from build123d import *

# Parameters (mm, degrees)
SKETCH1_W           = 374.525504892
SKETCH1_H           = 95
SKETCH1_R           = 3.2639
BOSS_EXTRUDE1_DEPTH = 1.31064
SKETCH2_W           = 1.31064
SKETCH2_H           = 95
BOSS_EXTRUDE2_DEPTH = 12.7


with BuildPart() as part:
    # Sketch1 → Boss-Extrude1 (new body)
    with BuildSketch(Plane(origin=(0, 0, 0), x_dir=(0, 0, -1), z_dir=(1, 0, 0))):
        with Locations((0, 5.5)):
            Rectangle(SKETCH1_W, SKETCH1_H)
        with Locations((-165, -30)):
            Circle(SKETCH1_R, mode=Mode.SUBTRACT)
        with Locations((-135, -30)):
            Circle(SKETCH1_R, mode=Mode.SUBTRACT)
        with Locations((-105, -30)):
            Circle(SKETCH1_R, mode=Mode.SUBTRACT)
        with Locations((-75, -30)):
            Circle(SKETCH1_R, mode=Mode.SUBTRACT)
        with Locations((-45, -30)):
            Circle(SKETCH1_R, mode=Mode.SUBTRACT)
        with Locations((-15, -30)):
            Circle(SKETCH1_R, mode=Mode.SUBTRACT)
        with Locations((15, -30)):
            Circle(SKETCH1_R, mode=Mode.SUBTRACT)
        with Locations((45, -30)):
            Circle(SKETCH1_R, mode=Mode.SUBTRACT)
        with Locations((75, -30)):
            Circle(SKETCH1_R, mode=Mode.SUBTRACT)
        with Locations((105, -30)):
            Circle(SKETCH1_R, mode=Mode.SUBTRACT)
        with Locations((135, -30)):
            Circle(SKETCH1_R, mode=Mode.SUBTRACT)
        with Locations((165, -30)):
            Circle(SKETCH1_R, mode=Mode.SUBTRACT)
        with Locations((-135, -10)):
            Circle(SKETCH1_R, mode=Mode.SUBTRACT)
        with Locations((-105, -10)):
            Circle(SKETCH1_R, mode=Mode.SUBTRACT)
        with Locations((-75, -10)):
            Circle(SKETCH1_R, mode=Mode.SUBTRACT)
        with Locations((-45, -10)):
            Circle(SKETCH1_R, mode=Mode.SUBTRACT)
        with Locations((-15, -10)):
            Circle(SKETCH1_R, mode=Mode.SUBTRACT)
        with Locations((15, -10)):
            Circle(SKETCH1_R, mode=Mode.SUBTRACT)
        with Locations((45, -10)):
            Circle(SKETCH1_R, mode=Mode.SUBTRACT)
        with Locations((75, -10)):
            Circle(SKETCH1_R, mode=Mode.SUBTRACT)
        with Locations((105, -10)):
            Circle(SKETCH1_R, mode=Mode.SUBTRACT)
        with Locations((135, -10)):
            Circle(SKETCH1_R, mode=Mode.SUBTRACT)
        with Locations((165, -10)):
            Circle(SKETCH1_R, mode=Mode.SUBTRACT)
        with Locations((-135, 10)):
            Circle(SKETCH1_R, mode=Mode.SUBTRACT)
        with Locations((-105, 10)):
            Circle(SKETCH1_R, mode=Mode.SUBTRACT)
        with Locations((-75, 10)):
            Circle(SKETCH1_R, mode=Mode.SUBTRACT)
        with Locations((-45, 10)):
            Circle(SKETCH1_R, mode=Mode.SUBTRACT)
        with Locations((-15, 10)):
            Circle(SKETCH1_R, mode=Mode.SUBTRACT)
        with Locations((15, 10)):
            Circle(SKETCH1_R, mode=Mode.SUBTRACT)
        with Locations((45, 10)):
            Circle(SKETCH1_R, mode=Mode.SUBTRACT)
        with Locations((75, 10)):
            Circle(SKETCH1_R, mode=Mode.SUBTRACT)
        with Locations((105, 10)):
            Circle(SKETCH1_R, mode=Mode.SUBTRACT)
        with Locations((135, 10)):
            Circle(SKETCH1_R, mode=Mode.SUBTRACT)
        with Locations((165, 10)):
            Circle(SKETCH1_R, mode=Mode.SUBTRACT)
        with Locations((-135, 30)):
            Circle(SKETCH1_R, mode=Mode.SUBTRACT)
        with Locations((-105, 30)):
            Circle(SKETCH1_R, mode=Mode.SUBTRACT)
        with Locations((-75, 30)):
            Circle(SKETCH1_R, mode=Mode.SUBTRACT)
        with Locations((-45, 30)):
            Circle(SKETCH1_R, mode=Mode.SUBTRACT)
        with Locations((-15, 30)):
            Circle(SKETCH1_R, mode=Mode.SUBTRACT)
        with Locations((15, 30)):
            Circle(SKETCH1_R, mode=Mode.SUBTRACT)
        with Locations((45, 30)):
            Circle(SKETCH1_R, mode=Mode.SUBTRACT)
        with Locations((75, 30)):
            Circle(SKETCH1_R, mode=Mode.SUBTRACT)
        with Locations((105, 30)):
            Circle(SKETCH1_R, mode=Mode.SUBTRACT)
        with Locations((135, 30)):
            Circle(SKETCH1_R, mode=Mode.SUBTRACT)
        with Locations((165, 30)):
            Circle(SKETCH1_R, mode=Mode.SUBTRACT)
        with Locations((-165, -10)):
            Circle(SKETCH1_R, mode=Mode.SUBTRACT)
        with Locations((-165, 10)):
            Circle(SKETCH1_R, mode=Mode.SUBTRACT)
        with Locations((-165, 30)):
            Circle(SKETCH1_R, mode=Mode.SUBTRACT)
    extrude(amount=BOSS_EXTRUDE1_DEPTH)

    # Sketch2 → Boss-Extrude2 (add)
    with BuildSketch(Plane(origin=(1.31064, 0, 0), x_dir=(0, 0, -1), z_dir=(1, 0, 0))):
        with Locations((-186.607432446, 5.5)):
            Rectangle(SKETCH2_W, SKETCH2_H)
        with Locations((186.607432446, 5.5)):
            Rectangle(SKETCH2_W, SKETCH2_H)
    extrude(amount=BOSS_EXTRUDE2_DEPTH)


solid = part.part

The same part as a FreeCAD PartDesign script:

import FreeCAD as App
import Part
import Sketcher

V = App.Vector
Q = App.Units.Quantity


def add_polygon(sketch, points):
    """Adds a closed chain of lines whose ends are joined by coincident constraints."""
    first, n = sketch.GeometryCount, len(points)
    for a, b in zip(points, points[1:] + points[:1]):
        sketch.addGeometry(Part.LineSegment(App.Vector(*a, 0), App.Vector(*b, 0)), False)
    for i in range(n):
        sketch.addConstraint(Sketcher.Constraint("Coincident", first + i, 2, first + (i + 1) % n, 1))

doc = App.newDocument("Part")
body = doc.addObject("PartDesign::Body", "Body")

# Sketch on YZ plane
sketch1 = body.newObject("Sketcher::SketchObject", "Sketch")
sketch1.AttachmentSupport = (doc.getObject("YZ_Plane"), [""])
sketch1.MapMode = "FlatFace"
add_polygon(sketch1, [(53, 187.262752), (-42, 187.262752), (-42, -187.262752), (53, -187.262752)])  # lines 0-3
sketch1.addGeometry(Part.Circle(V(-30, 165, 0), V(0, 0, 1), 3.2639), False)  # 4
sketch1.addGeometry(Part.Circle(V(-30, 135, 0), V(0, 0, 1), 3.2639), False)  # 5
sketch1.addGeometry(Part.Circle(V(-30, 105, 0), V(0, 0, 1), 3.2639), False)  # 6
sketch1.addGeometry(Part.Circle(V(-30, 75, 0), V(0, 0, 1), 3.2639), False)  # 7
sketch1.addGeometry(Part.Circle(V(-30, 45, 0), V(0, 0, 1), 3.2639), False)  # 8
sketch1.addGeometry(Part.Circle(V(-30, 15, 0), V(0, 0, 1), 3.2639), False)  # 9
sketch1.addGeometry(Part.Circle(V(-10, 165, 0), V(0, 0, 1), 3.2639), False)  # 10
sketch1.addGeometry(Part.Circle(V(-10, 135, 0), V(0, 0, 1), 3.2639), False)  # 11
sketch1.addGeometry(Part.Circle(V(-10, 105, 0), V(0, 0, 1), 3.2639), False)  # 12
sketch1.addGeometry(Part.Circle(V(-10, 75, 0), V(0, 0, 1), 3.2639), False)  # 13
sketch1.addGeometry(Part.Circle(V(-10, 45, 0), V(0, 0, 1), 3.2639), False)  # 14
sketch1.addGeometry(Part.Circle(V(-10, 15, 0), V(0, 0, 1), 3.2639), False)  # 15
sketch1.addGeometry(Part.Circle(V(-30, -15, 0), V(0, 0, 1), 3.2639), False)  # 16
sketch1.addGeometry(Part.Circle(V(-30, -45, 0), V(0, 0, 1), 3.2639), False)  # 17
sketch1.addGeometry(Part.Circle(V(-30, -75, 0), V(0, 0, 1), 3.2639), False)  # 18
sketch1.addGeometry(Part.Circle(V(-30, -105, 0), V(0, 0, 1), 3.2639), False)  # 19
sketch1.addGeometry(Part.Circle(V(-30, -135, 0), V(0, 0, 1), 3.2639), False)  # 20
sketch1.addGeometry(Part.Circle(V(-30, -165, 0), V(0, 0, 1), 3.2639), False)  # 21
sketch1.addGeometry(Part.Circle(V(-10, -15, 0), V(0, 0, 1), 3.2639), False)  # 22
sketch1.addGeometry(Part.Circle(V(-10, -45, 0), V(0, 0, 1), 3.2639), False)  # 23
sketch1.addGeometry(Part.Circle(V(-10, -75, 0), V(0, 0, 1), 3.2639), False)  # 24
sketch1.addGeometry(Part.Circle(V(-10, -105, 0), V(0, 0, 1), 3.2639), False)  # 25
sketch1.addGeometry(Part.Circle(V(-10, -135, 0), V(0, 0, 1), 3.2639), False)  # 26
sketch1.addGeometry(Part.Circle(V(-10, -165, 0), V(0, 0, 1), 3.2639), False)  # 27
sketch1.addGeometry(Part.Circle(V(10, 165, 0), V(0, 0, 1), 3.2639), False)  # 28
sketch1.addGeometry(Part.Circle(V(10, 135, 0), V(0, 0, 1), 3.2639), False)  # 29
sketch1.addGeometry(Part.Circle(V(10, 105, 0), V(0, 0, 1), 3.2639), False)  # 30
sketch1.addGeometry(Part.Circle(V(10, 75, 0), V(0, 0, 1), 3.2639), False)  # 31
sketch1.addGeometry(Part.Circle(V(10, 45, 0), V(0, 0, 1), 3.2639), False)  # 32
sketch1.addGeometry(Part.Circle(V(10, 15, 0), V(0, 0, 1), 3.2639), False)  # 33
sketch1.addGeometry(Part.Circle(V(30, 165, 0), V(0, 0, 1), 3.2639), False)  # 34
sketch1.addGeometry(Part.Circle(V(30, 135, 0), V(0, 0, 1), 3.2639), False)  # 35
sketch1.addGeometry(Part.Circle(V(30, 105, 0), V(0, 0, 1), 3.2639), False)  # 36
sketch1.addGeometry(Part.Circle(V(30, 75, 0), V(0, 0, 1), 3.2639), False)  # 37
sketch1.addGeometry(Part.Circle(V(30, 45, 0), V(0, 0, 1), 3.2639), False)  # 38
sketch1.addGeometry(Part.Circle(V(30, 15, 0), V(0, 0, 1), 3.2639), False)  # 39
sketch1.addGeometry(Part.Circle(V(10, -15, 0), V(0, 0, 1), 3.2639), False)  # 40
sketch1.addGeometry(Part.Circle(V(10, -45, 0), V(0, 0, 1), 3.2639), False)  # 41
sketch1.addGeometry(Part.Circle(V(10, -75, 0), V(0, 0, 1), 3.2639), False)  # 42
sketch1.addGeometry(Part.Circle(V(10, -105, 0), V(0, 0, 1), 3.2639), False)  # 43
sketch1.addGeometry(Part.Circle(V(10, -135, 0), V(0, 0, 1), 3.2639), False)  # 44
sketch1.addGeometry(Part.Circle(V(10, -165, 0), V(0, 0, 1), 3.2639), False)  # 45
sketch1.addGeometry(Part.Circle(V(30, -15, 0), V(0, 0, 1), 3.2639), False)  # 46
sketch1.addGeometry(Part.Circle(V(30, -45, 0), V(0, 0, 1), 3.2639), False)  # 47
sketch1.addGeometry(Part.Circle(V(30, -75, 0), V(0, 0, 1), 3.2639), False)  # 48
sketch1.addGeometry(Part.Circle(V(30, -105, 0), V(0, 0, 1), 3.2639), False)  # 49
sketch1.addGeometry(Part.Circle(V(30, -135, 0), V(0, 0, 1), 3.2639), False)  # 50
sketch1.addGeometry(Part.Circle(V(30, -165, 0), V(0, 0, 1), 3.2639), False)  # 51
sketch1.addConstraint(Sketcher.Constraint("Horizontal", 0))
sketch1.addConstraint(Sketcher.Constraint("Vertical", 1))
sketch1.addConstraint(Sketcher.Constraint("Horizontal", 2))
sketch1.addConstraint(Sketcher.Constraint("Vertical", 3))
sketch1.addConstraint(Sketcher.Constraint("Equal", 4, 5))
sketch1.addConstraint(Sketcher.Constraint("Equal", 5, 6))
sketch1.addConstraint(Sketcher.Constraint("Equal", 6, 7))
sketch1.addConstraint(Sketcher.Constraint("Equal", 7, 8))
sketch1.addConstraint(Sketcher.Constraint("Equal", 8, 9))
sketch1.addConstraint(Sketcher.Constraint("Equal", 9, 10))
sketch1.addConstraint(Sketcher.Constraint("Equal", 10, 11))
sketch1.addConstraint(Sketcher.Constraint("Equal", 11, 12))
sketch1.addConstraint(Sketcher.Constraint("Equal", 12, 13))
sketch1.addConstraint(Sketcher.Constraint("Equal", 13, 14))
sketch1.addConstraint(Sketcher.Constraint("Equal", 14, 15))
sketch1.addConstraint(Sketcher.Constraint("Equal", 15, 16))
sketch1.addConstraint(Sketcher.Constraint("Equal", 16, 17))
sketch1.addConstraint(Sketcher.Constraint("Equal", 17, 18))
sketch1.addConstraint(Sketcher.Constraint("Equal", 18, 19))
sketch1.addConstraint(Sketcher.Constraint("Equal", 19, 20))
sketch1.addConstraint(Sketcher.Constraint("Equal", 20, 21))
sketch1.addConstraint(Sketcher.Constraint("Equal", 21, 22))
sketch1.addConstraint(Sketcher.Constraint("Equal", 22, 23))
sketch1.addConstraint(Sketcher.Constraint("Equal", 23, 24))
sketch1.addConstraint(Sketcher.Constraint("Equal", 24, 25))
sketch1.addConstraint(Sketcher.Constraint("Equal", 25, 26))
sketch1.addConstraint(Sketcher.Constraint("Equal", 26, 27))
sketch1.addConstraint(Sketcher.Constraint("Equal", 27, 28))
sketch1.addConstraint(Sketcher.Constraint("Equal", 28, 29))
sketch1.addConstraint(Sketcher.Constraint("Equal", 29, 30))
sketch1.addConstraint(Sketcher.Constraint("Equal", 30, 31))
sketch1.addConstraint(Sketcher.Constraint("Equal", 31, 32))
sketch1.addConstraint(Sketcher.Constraint("Equal", 32, 33))
sketch1.addConstraint(Sketcher.Constraint("Equal", 33, 34))
sketch1.addConstraint(Sketcher.Constraint("Equal", 34, 35))
sketch1.addConstraint(Sketcher.Constraint("Equal", 35, 36))
sketch1.addConstraint(Sketcher.Constraint("Equal", 36, 37))
sketch1.addConstraint(Sketcher.Constraint("Equal", 37, 38))
sketch1.addConstraint(Sketcher.Constraint("Equal", 38, 39))
sketch1.addConstraint(Sketcher.Constraint("Equal", 39, 40))
sketch1.addConstraint(Sketcher.Constraint("Equal", 40, 41))
sketch1.addConstraint(Sketcher.Constraint("Equal", 41, 42))
sketch1.addConstraint(Sketcher.Constraint("Equal", 42, 43))
sketch1.addConstraint(Sketcher.Constraint("Equal", 43, 44))
sketch1.addConstraint(Sketcher.Constraint("Equal", 44, 45))
sketch1.addConstraint(Sketcher.Constraint("Equal", 45, 46))
sketch1.addConstraint(Sketcher.Constraint("Equal", 46, 47))
sketch1.addConstraint(Sketcher.Constraint("Equal", 47, 48))
sketch1.addConstraint(Sketcher.Constraint("Equal", 48, 49))
sketch1.addConstraint(Sketcher.Constraint("Equal", 49, 50))
sketch1.addConstraint(Sketcher.Constraint("Equal", 50, 51))
sketch1.addConstraint(Sketcher.Constraint("Symmetric", 27, 3, 28, 3, -1, 1))
sketch1.addConstraint(Sketcher.Constraint("Symmetric", 26, 3, 29, 3, -1, 1))
sketch1.addConstraint(Sketcher.Constraint("Symmetric", 25, 3, 30, 3, -1, 1))
sketch1.addConstraint(Sketcher.Constraint("Symmetric", 24, 3, 31, 3, -1, 1))
sketch1.addConstraint(Sketcher.Constraint("Symmetric", 23, 3, 32, 3, -1, 1))
sketch1.addConstraint(Sketcher.Constraint("Symmetric", 22, 3, 33, 3, -1, 1))
sketch1.addConstraint(Sketcher.Constraint("Symmetric", 21, 3, 34, 3, -1, 1))
sketch1.addConstraint(Sketcher.Constraint("Symmetric", 20, 3, 35, 3, -1, 1))
sketch1.addConstraint(Sketcher.Constraint("Symmetric", 19, 3, 36, 3, -1, 1))
sketch1.addConstraint(Sketcher.Constraint("Symmetric", 18, 3, 37, 3, -1, 1))
sketch1.addConstraint(Sketcher.Constraint("Symmetric", 17, 3, 38, 3, -1, 1))
sketch1.addConstraint(Sketcher.Constraint("Symmetric", 16, 3, 39, 3, -1, 1))
sketch1.addConstraint(Sketcher.Constraint("Symmetric", 15, 3, 40, 3, -1, 1))
sketch1.addConstraint(Sketcher.Constraint("Symmetric", 14, 3, 41, 3, -1, 1))
sketch1.addConstraint(Sketcher.Constraint("Symmetric", 13, 3, 42, 3, -1, 1))
sketch1.addConstraint(Sketcher.Constraint("Symmetric", 12, 3, 43, 3, -1, 1))
sketch1.addConstraint(Sketcher.Constraint("Symmetric", 11, 3, 44, 3, -1, 1))
sketch1.addConstraint(Sketcher.Constraint("Symmetric", 10, 3, 45, 3, -1, 1))
sketch1.addConstraint(Sketcher.Constraint("Symmetric", 9, 3, 46, 3, -1, 1))
sketch1.addConstraint(Sketcher.Constraint("Symmetric", 8, 3, 47, 3, -1, 1))
sketch1.addConstraint(Sketcher.Constraint("Symmetric", 7, 3, 48, 3, -1, 1))
sketch1.addConstraint(Sketcher.Constraint("Symmetric", 6, 3, 49, 3, -1, 1))
sketch1.addConstraint(Sketcher.Constraint("Symmetric", 5, 3, 50, 3, -1, 1))
sketch1.addConstraint(Sketcher.Constraint("Symmetric", 4, 3, 51, 3, -1, 1))
sketch1.addConstraint(Sketcher.Constraint("Symmetric", 10, 3, 28, 3, -2))
sketch1.addConstraint(Sketcher.Constraint("Symmetric", 11, 3, 29, 3, -2))
sketch1.addConstraint(Sketcher.Constraint("Symmetric", 12, 3, 30, 3, -2))
sketch1.addConstraint(Sketcher.Constraint("Symmetric", 13, 3, 31, 3, -2))
sketch1.addConstraint(Sketcher.Constraint("Symmetric", 14, 3, 32, 3, -2))
sketch1.addConstraint(Sketcher.Constraint("Symmetric", 15, 3, 33, 3, -2))
sketch1.addConstraint(Sketcher.Constraint("Symmetric", 4, 3, 34, 3, -2))
sketch1.addConstraint(Sketcher.Constraint("Symmetric", 5, 3, 35, 3, -2))
sketch1.addConstraint(Sketcher.Constraint("Symmetric", 6, 3, 36, 3, -2))
sketch1.addConstraint(Sketcher.Constraint("Symmetric", 7, 3, 37, 3, -2))
sketch1.addConstraint(Sketcher.Constraint("Symmetric", 8, 3, 38, 3, -2))
sketch1.addConstraint(Sketcher.Constraint("Symmetric", 9, 3, 39, 3, -2))
sketch1.addConstraint(Sketcher.Constraint("Horizontal", 4, 3, 10, 3))
sketch1.addConstraint(Sketcher.Constraint("Horizontal", 5, 3, 11, 3))
sketch1.addConstraint(Sketcher.Constraint("Horizontal", 6, 3, 12, 3))
sketch1.addConstraint(Sketcher.Constraint("Horizontal", 7, 3, 13, 3))
sketch1.addConstraint(Sketcher.Constraint("Horizontal", 8, 3, 14, 3))
sketch1.addConstraint(Sketcher.Constraint("Horizontal", 9, 3, 15, 3))
sketch1.addConstraint(Sketcher.Constraint("Vertical", 4, 3, 5, 3))
sketch1.addConstraint(Sketcher.Constraint("Vertical", 5, 3, 6, 3))
sketch1.addConstraint(Sketcher.Constraint("Vertical", 6, 3, 7, 3))
sketch1.addConstraint(Sketcher.Constraint("Vertical", 7, 3, 8, 3))
sketch1.addConstraint(Sketcher.Constraint("Vertical", 8, 3, 9, 3))
sketch1.addConstraint(Sketcher.Constraint("Vertical", 10, 3, 11, 3))
sketch1.addConstraint(Sketcher.Constraint("Vertical", 11, 3, 12, 3))
sketch1.addConstraint(Sketcher.Constraint("Vertical", 12, 3, 13, 3))
sketch1.addConstraint(Sketcher.Constraint("Vertical", 13, 3, 14, 3))
sketch1.addConstraint(Sketcher.Constraint("Vertical", 14, 3, 15, 3))
sketch1.addConstraint(Sketcher.Constraint("Diameter", 4, Q("0.257 in")))
sketch1.addConstraint(Sketcher.Constraint("DistanceX", 0, 2, 0, 1, Q("95 mm")))
sketch1.addConstraint(Sketcher.Constraint("DistanceX", 4, 3, -1, 1, Q("30 mm")))
sketch1.addConstraint(Sketcher.Constraint("DistanceY", -1, 1, 4, 3, Q("165 mm")))
sketch1.addConstraint(Sketcher.Constraint("DistanceY", -1, 1, 5, 3, Q("135 mm")))
sketch1.addConstraint(Sketcher.Constraint("DistanceY", -1, 1, 6, 3, Q("105 mm")))
sketch1.addConstraint(Sketcher.Constraint("DistanceY", -1, 1, 7, 3, Q("75 mm")))
sketch1.addConstraint(Sketcher.Constraint("DistanceY", -1, 1, 8, 3, Q("45 mm")))
sketch1.addConstraint(Sketcher.Constraint("DistanceY", -1, 1, 9, 3, Q("15 mm")))
sketch1.addConstraint(Sketcher.Constraint("DistanceX", 10, 3, -1, 1, Q("10 mm")))
sketch1.addConstraint(Sketcher.Constraint("DistanceX", 0, 2, -1, 1, Q("42 mm")))
sketch1.addConstraint(Sketcher.Constraint("DistanceY", 1, 2, 1, 1, Q("374.525505 mm")))
sketch1.addConstraint(Sketcher.Constraint("DistanceY", -1, 1, 0, 2, Q("187.262752 mm")))
pad1 = body.newObject("PartDesign::Pad", "Pad")
pad1.Profile = sketch1
pad1.Length = Q("0.0516 in")

# Sketch on YZ plane
sketch2 = body.newObject("Sketcher::SketchObject", "Sketch001")
sketch2.AttachmentSupport = (doc.getObject("YZ_Plane"), [""])
sketch2.MapMode = "FlatFace"
sketch2.AttachmentOffset = App.Placement(V(0, 0, 0.0516 * 25.4), App.Rotation())
add_polygon(sketch2, [(53, 187.262752), (-42, 187.262752), (-42, 185.952112), (53, 185.952112)])  # lines 0-3
add_polygon(sketch2, [(53, -185.952112), (-42, -185.952112), (-42, -187.262752), (53, -187.262752)])  # lines 4-7
sketch2.addConstraint(Sketcher.Constraint("Horizontal", 0))
sketch2.addConstraint(Sketcher.Constraint("Vertical", 1))
sketch2.addConstraint(Sketcher.Constraint("Horizontal", 2))
sketch2.addConstraint(Sketcher.Constraint("Vertical", 3))
sketch2.addConstraint(Sketcher.Constraint("Horizontal", 4))
sketch2.addConstraint(Sketcher.Constraint("Vertical", 5))
sketch2.addConstraint(Sketcher.Constraint("Horizontal", 6))
sketch2.addConstraint(Sketcher.Constraint("Vertical", 7))
sketch2.addConstraint(Sketcher.Constraint("Symmetric", 1, 2, 4, 2, -1))
sketch2.addConstraint(Sketcher.Constraint("Symmetric", 3, 2, 6, 2, -1))
sketch2.addConstraint(Sketcher.Constraint("DistanceY", 1, 2, 1, 1, Q("0.0516 in")))
sketch2.addConstraint(Sketcher.Constraint("DistanceX", 0, 2, 0, 1, Q("95 mm")))
sketch2.addConstraint(Sketcher.Constraint("DistanceX", 0, 2, -1, 1, Q("42 mm")))
sketch2.addConstraint(Sketcher.Constraint("DistanceY", -1, 1, 0, 2, Q("187.262752 mm")))
pad2 = body.newObject("PartDesign::Pad", "Pad001")
pad2.Profile = sketch2
pad2.Length = Q("0.5 in")

doc.recompute()
